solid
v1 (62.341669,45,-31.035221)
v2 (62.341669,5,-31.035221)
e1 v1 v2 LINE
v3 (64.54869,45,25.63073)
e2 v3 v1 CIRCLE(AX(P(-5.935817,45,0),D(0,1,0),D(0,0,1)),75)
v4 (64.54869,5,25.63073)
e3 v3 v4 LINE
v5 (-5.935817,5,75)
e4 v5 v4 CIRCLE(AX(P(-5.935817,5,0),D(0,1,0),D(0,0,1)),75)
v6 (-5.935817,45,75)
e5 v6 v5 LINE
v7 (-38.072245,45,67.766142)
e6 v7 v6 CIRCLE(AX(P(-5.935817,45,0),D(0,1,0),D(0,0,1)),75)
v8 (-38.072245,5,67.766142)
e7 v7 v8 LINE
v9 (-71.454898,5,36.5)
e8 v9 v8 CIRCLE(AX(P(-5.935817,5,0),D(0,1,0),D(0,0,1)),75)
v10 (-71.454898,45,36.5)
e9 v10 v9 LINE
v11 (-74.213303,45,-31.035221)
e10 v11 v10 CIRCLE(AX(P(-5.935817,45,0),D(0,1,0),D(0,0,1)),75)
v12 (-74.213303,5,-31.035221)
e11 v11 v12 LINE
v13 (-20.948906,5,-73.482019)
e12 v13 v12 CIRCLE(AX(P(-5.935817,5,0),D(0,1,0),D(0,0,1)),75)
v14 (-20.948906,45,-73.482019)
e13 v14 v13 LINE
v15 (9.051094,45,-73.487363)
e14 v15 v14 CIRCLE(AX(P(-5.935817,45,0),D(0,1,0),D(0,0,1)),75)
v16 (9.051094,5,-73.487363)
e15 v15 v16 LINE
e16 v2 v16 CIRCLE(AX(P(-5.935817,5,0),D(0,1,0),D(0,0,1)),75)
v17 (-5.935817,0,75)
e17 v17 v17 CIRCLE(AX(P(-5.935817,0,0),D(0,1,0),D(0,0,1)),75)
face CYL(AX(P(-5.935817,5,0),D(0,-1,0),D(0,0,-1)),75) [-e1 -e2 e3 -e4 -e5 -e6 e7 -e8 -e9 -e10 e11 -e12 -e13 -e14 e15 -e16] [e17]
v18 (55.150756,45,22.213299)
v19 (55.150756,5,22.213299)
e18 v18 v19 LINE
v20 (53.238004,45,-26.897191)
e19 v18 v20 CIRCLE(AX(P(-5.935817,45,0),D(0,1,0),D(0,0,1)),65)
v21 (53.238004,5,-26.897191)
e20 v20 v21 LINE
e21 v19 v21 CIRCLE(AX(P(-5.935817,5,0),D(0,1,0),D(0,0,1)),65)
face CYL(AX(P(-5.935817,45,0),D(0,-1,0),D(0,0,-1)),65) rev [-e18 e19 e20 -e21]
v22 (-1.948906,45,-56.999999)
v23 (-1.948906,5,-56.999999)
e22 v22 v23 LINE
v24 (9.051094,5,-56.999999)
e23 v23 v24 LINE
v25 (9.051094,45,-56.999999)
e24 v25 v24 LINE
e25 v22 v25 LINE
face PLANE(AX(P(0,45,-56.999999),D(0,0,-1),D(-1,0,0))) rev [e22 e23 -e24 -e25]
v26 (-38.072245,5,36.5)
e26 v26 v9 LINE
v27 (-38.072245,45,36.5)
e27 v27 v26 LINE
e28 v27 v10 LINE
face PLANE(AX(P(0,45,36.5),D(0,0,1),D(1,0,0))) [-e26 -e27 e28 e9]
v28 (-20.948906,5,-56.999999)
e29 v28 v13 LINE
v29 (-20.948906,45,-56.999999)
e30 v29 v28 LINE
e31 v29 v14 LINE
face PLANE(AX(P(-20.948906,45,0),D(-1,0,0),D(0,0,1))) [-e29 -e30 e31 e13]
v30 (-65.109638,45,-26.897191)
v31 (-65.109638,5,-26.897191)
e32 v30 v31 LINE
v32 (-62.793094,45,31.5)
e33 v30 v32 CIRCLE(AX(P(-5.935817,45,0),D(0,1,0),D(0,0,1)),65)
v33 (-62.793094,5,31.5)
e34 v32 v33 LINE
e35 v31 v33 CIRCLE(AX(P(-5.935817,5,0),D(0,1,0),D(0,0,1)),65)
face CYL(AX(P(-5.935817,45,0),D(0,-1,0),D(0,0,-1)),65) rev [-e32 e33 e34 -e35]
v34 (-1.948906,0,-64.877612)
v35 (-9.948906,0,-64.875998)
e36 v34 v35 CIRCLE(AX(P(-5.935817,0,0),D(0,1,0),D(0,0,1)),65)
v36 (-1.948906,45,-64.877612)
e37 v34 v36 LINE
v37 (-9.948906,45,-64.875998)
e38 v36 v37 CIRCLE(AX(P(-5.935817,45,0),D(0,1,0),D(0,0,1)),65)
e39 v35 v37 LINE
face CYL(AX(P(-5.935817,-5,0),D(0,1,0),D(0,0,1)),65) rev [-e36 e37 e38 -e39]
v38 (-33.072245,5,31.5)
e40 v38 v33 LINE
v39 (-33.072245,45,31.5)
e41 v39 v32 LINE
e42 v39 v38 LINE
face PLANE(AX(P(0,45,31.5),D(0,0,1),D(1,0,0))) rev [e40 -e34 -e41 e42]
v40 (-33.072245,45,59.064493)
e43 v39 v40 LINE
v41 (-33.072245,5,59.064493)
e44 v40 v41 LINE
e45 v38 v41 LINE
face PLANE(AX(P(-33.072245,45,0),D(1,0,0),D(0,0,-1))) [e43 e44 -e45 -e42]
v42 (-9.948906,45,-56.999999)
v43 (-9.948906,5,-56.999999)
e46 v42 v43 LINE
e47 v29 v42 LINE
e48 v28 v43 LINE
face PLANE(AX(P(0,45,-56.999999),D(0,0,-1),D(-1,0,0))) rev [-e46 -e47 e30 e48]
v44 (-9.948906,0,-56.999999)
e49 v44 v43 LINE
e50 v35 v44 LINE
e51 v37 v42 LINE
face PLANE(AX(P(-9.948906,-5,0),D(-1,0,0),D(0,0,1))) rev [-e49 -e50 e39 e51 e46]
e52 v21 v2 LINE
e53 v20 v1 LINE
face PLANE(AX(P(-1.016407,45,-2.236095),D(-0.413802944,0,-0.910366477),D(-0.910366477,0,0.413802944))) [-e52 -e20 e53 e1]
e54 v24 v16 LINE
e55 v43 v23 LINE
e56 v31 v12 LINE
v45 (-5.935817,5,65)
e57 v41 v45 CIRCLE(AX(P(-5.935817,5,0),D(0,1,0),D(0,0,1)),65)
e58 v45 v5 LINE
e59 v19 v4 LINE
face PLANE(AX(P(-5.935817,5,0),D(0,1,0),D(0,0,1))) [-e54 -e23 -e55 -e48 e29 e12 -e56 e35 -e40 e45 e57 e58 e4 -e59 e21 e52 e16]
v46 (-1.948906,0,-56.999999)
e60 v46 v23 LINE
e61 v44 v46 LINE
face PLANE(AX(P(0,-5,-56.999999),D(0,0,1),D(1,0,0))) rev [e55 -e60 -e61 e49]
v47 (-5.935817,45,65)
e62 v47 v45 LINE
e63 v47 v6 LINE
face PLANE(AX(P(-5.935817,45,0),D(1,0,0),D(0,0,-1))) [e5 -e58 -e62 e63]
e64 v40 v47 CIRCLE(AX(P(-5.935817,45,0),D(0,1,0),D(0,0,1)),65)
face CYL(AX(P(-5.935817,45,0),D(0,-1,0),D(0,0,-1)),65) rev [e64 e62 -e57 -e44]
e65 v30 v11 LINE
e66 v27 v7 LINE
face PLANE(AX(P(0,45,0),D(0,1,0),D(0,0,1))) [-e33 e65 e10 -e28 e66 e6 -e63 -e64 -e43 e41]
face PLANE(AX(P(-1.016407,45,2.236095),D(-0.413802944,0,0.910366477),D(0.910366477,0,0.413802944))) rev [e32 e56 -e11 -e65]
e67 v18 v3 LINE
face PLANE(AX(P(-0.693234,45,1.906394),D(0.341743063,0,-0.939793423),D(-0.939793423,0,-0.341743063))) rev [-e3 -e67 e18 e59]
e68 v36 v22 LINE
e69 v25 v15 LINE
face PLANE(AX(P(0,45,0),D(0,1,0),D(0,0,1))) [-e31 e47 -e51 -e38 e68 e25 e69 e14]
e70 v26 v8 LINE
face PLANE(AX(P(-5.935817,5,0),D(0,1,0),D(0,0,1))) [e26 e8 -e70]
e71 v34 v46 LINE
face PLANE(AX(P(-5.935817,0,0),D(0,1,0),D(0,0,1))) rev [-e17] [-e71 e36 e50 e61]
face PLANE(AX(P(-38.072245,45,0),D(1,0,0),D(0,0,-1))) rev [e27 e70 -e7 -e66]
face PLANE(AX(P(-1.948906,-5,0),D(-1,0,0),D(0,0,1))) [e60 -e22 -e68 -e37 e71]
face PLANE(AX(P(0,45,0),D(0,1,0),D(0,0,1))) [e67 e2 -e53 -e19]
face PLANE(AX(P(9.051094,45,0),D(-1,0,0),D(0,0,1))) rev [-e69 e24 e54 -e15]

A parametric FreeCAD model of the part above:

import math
import FreeCAD as App
import Part
import Sketcher
from FreeCAD import Vector

doc = App.newDocument("Part")
params = doc.addObject("Spreadsheet::Sheet", "Params")
for row, (alias, value) in enumerate([
    ("sketch1_diameter", "150 mm"),
    ("pad1_length", "5 mm"),
    ("sketch2_radius", "65 mm"),
    ("sketch2_width", "8 mm"),
    ("pocket1_length", "10 mm"),
    ("sketch3_radius", "65 mm"),
    ("sketch3_radius2", "75 mm"),
    ("sketch3_width", "11 mm"),
    ("pad2_length", "40 mm"),
], start=1):
    params.set(f"A{row}", alias)
    params.set(f"B{row}", "=" + value)
    params.setAlias(f"B{row}", alias)

body = doc.addObject("PartDesign::Body", "Body")

sketch1 = body.newObject("Sketcher::SketchObject", "Sketch")
sketch1.AttachmentSupport = (doc.getObject("XZ_Plane"), [""])
sketch1.MapMode = "FlatFace"
sketch1.addGeometry(Part.Circle(Vector(-6, 0, 0), Vector(0, 0, 1), 75), False)
sketch1.addConstraint([
    Sketcher.Constraint("PointOnObject", 0, 3, -1),
    Sketcher.Constraint("Diameter", 0, 150.0),
    Sketcher.Constraint("DistanceX", 0, 3, -1, 1, 5.935817),
])
sketch1.setExpression("Constraints[1]", "Params.sketch1_diameter")
pad1 = body.newObject("PartDesign::Pad", "Pad")
pad1.Profile = sketch1
pad1.setExpression("Length", "Params.pad1_length")
pad1.Reversed = True

sketch2 = body.newObject("Sketcher::SketchObject", "Sketch001")
sketch2.AttachmentSupport = (doc.getObject("XZ_Plane"), [""])
sketch2.MapMode = "FlatFace"
sketch2.AttachmentOffset = App.Placement(Vector(0, 0, -5), App.Rotation())
sketch2.addGeometry([
    Part.LineSegment(Vector(-2, -57, 0), Vector(-2, -65, 0)),
    Part.ArcOfCircle(Part.Circle(Vector(-6, 0, 0), Vector(0, 0, 1), 65), math.radians(-93.54), math.radians(-86.48)),
    Part.LineSegment(Vector(-10, -65, 0), Vector(-10, -57, 0)),
    Part.LineSegment(Vector(-10, -57, 0), Vector(-2, -57, 0)),
], False)
sketch2.addConstraint([
    Sketcher.Constraint("Coincident", 0, 2, 1, 2),
    Sketcher.Constraint("Coincident", 1, 1, 2, 1),
    Sketcher.Constraint("Coincident", 2, 2, 3, 1),
    Sketcher.Constraint("Coincident", 3, 2, 0, 1),
    Sketcher.Constraint("Vertical", 0),
    Sketcher.Constraint("Vertical", 2),
    Sketcher.Constraint("Horizontal", 3),
    Sketcher.Constraint("PointOnObject", 1, 3, -1),
    Sketcher.Constraint("Radius", 1, 65.0),
    Sketcher.Constraint("DistanceX", 3, 1, 3, 2, 8.0),
    Sketcher.Constraint("DistanceY", 2, 2, -1, 1, 56.999999),
    Sketcher.Constraint("DistanceY", 2, 1, 2, 2, 7.875999),
    Sketcher.Constraint("DistanceX", 1, 3, -1, 1, 5.935817),
])
sketch2.setExpression("Constraints[8]", "Params.sketch2_radius")
sketch2.setExpression("Constraints[9]", "Params.sketch2_width")
pocket1 = body.newObject("PartDesign::Pocket", "Pocket")
pocket1.Profile = sketch2
pocket1.setExpression("Length", "Params.pocket1_length")
pocket1.Reversed = True

sketch3 = body.newObject("Sketcher::SketchObject", "Sketch002")
sketch3.AttachmentSupport = (doc.getObject("XZ_Plane"), [""])
sketch3.MapMode = "FlatFace"
sketch3.AttachmentOffset = App.Placement(Vector(0, 0, -5), App.Rotation())
sketch3.addGeometry([
    Part.ArcOfCircle(Part.Circle(Vector(-6, 0, 0), Vector(0, 0, 1), 65), math.radians(-24), math.radians(0)),
    Part.ArcOfCircle(Part.Circle(Vector(-6, 0, 0), Vector(0, 0, 1), 65), math.radians(0), math.radians(19.98)),
    Part.LineSegment(Vector(55, 22, 0), Vector(65, 26, 0)),
    Part.ArcOfCircle(Part.Circle(Vector(-6, 0, 0), Vector(0, 0, 1), 75), math.radians(0), math.radians(19.98)),
    Part.ArcOfCircle(Part.Circle(Vector(-6, 0, 0), Vector(0, 0, 1), 75), math.radians(-24), math.radians(0)),
    Part.LineSegment(Vector(62, -31, 0), Vector(53, -27, 0)),
    Part.LineSegment(Vector(-6, 75, 0), Vector(-6, 65, 0)),
    Part.ArcOfCircle(Part.Circle(Vector(-6, 0, 0), Vector(0, 0, 1), 65), math.radians(90), math.radians(115)),
    Part.LineSegment(Vector(-33, 59, 0), Vector(-33, 32, 0)),
    Part.LineSegment(Vector(-33, 32, 0), Vector(-63, 32, 0)),
    Part.ArcOfCircle(Part.Circle(Vector(-6, 0, 0), Vector(0, 0, 1), 65), math.radians(151.01), math.radians(160.02)),
    Part.ArcOfCircle(Part.Circle(Vector(-6, 0, 0), Vector(0, 0, 1), 65), math.radians(160.02), math.radians(180)),
    Part.ArcOfCircle(Part.Circle(Vector(-6, 0, 0), Vector(0, 0, 1), 65), math.radians(-180), math.radians(-156)),
    Part.LineSegment(Vector(-65, -27, 0), Vector(-74, -31, 0)),
    Part.ArcOfCircle(Part.Circle(Vector(-6, 0, 0), Vector(0, 0, 1), 75), math.radians(180), math.radians(204)),
    Part.ArcOfCircle(Part.Circle(Vector(-6, 0, 0), Vector(0, 0, 1), 75), math.radians(160.02), math.radians(180)),
    Part.ArcOfCircle(Part.Circle(Vector(-6, 0, 0), Vector(0, 0, 1), 75), math.radians(155.17), math.radians(160.02)),
    Part.ArcOfCircle(Part.Circle(Vector(-6, 0, 0), Vector(0, 0, 1), 75), math.radians(150.88), math.radians(155.17)),
    Part.LineSegment(Vector(-71, 36, 0), Vector(-38, 36, 0)),
    Part.LineSegment(Vector(-38, 36, 0), Vector(-38, 68, 0)),
    Part.ArcOfCircle(Part.Circle(Vector(-6, 0, 0), Vector(0, 0, 1), 75), math.radians(111.21), math.radians(115.37)),
    Part.ArcOfCircle(Part.Circle(Vector(-6, 0, 0), Vector(0, 0, 1), 75), math.radians(90), math.radians(111)),
    Part.LineSegment(Vector(-21, -57, 0), Vector(-10, -57, 0)),
    Part.LineSegment(Vector(-10, -57, 0), Vector(-10, -65, 0)),
    Part.ArcOfCircle(Part.Circle(Vector(-6, 0, 0), Vector(0, 0, 1), 65), math.radians(-93.54), math.radians(-86.48)),
    Part.LineSegment(Vector(-2, -65, 0), Vector(-2, -57, 0)),
    Part.LineSegment(Vector(-2, -57, 0), Vector(9, -57, 0)),
    Part.LineSegment(Vector(9, -57, 0), Vector(9, -73, 0)),
    Part.ArcOfCircle(Part.Circle(Vector(-6, 0, 0), Vector(0, 0, 1), 75), math.radians(-102), math.radians(-78)),
    Part.LineSegment(Vector(-21, -73, 0), Vector(-21, -57, 0)),
], False)
sketch3.addConstraint([
    Sketcher.Constraint("Tangent", 0, 2, 1, 1),
    Sketcher.Constraint("Coincident", 1, 2, 2, 1),
    Sketcher.Constraint("Coincident", 2, 2, 3, 2),
    Sketcher.Constraint("Tangent", 3, 1, 4, 2),
    Sketcher.Constraint("Coincident", 4, 1, 5, 1),
    Sketcher.Constraint("Coincident", 5, 2, 0, 1),
    Sketcher.Constraint("Coincident", 6, 2, 7, 1),
    Sketcher.Constraint("Coincident", 7, 2, 8, 1),
    Sketcher.Constraint("Coincident", 8, 2, 9, 1),
    Sketcher.Constraint("Coincident", 9, 2, 10, 1),
    Sketcher.Constraint("Tangent", 10, 2, 11, 1),
    Sketcher.Constraint("Tangent", 11, 2, 12, 1),
    Sketcher.Constraint("Coincident", 12, 2, 13, 1),
    Sketcher.Constraint("Coincident", 13, 2, 14, 2),
    Sketcher.Constraint("Tangent", 14, 1, 15, 2),
    Sketcher.Constraint("Tangent", 15, 1, 16, 2),
    Sketcher.Constraint("Tangent", 16, 1, 17, 2),
    Sketcher.Constraint("Coincident", 17, 1, 18, 1),
    Sketcher.Constraint("Coincident", 18, 2, 19, 1),
    Sketcher.Constraint("Coincident", 19, 2, 20, 2),
    Sketcher.Constraint("Tangent", 20, 1, 21, 2),
    Sketcher.Constraint("Coincident", 21, 1, 6, 1),
    Sketcher.Constraint("Coincident", 22, 2, 23, 1),
    Sketcher.Constraint("Coincident", 23, 2, 24, 1),
    Sketcher.Constraint("Coincident", 24, 2, 25, 1),
    Sketcher.Constraint("Coincident", 25, 2, 26, 1),
    Sketcher.Constraint("Coincident", 26, 2, 27, 1),
    Sketcher.Constraint("Coincident", 27, 2, 28, 2),
    Sketcher.Constraint("Coincident", 28, 1, 29, 1),
    Sketcher.Constraint("Coincident", 29, 2, 22, 1),
    Sketcher.Constraint("Vertical", 6),
    Sketcher.Constraint("Vertical", 8),
    Sketcher.Constraint("Horizontal", 9),
    Sketcher.Constraint("Horizontal", 18),
    Sketcher.Constraint("Vertical", 19),
    Sketcher.Constraint("Horizontal", 22),
    Sketcher.Constraint("Vertical", 23),
    Sketcher.Constraint("Vertical", 25),
    Sketcher.Constraint("Horizontal", 26),
    Sketcher.Constraint("Vertical", 27),
    Sketcher.Constraint("Vertical", 29),
    Sketcher.Constraint("Coincident", 3, 3, 0, 3),
    Sketcher.Constraint("Coincident", 7, 3, 0, 3),
    Sketcher.Constraint("Coincident", 10, 3, 0, 3),
    Sketcher.Constraint("Coincident", 12, 3, 0, 3),
    Sketcher.Constraint("Coincident", 14, 3, 0, 3),
    Sketcher.Constraint("Coincident", 16, 3, 0, 3),
    Sketcher.Constraint("Coincident", 20, 3, 0, 3),
    Sketcher.Constraint("Coincident", 24, 3, 0, 3),
    Sketcher.Constraint("Coincident", 28, 3, 0, 3),
    Sketcher.Constraint("Equal", 0, 1),
    Sketcher.Constraint("Equal", 3, 4),
    Sketcher.Constraint("Equal", 1, 7),
    Sketcher.Constraint("Equal", 7, 10),
    Sketcher.Constraint("Equal", 4, 14),
    Sketcher.Constraint("Equal", 16, 17),
    Sketcher.Constraint("Equal", 17, 20),
    Sketcher.Constraint("Equal", 20, 21),
    Sketcher.Constraint("Equal", 12, 24),
    Sketcher.Constraint("Equal", 21, 28),
    Sketcher.Constraint("PointOnObject", 0, 3, -1),
    Sketcher.Constraint("PointOnObject", 0, 2, -1),
    Sketcher.Constraint("PointOnObject", 3, 1, -1),
    Sketcher.Constraint("PointOnObject", 11, 2, -1),
    Sketcher.Constraint("PointOnObject", 14, 1, -1),
    Sketcher.Constraint("Horizontal", 1, 2, 10, 2),
    Sketcher.Constraint("Horizontal", 5, 2, 12, 2),
    Sketcher.Constraint("Horizontal", 4, 1, 13, 2),
    Sketcher.Constraint("Horizontal", 2, 2, 15, 1),
    Sketcher.Constraint("Horizontal", 9, 2, 16, 1),
    Sketcher.Constraint("Horizontal", 22, 2, 25, 2),
    Sketcher.Constraint("Vertical", 28, 3, 6, 2),
    Sketcher.Constraint("Vertical", 8, 2, 20, 1),
    Sketcher.Constraint("Equal", 22, 26),
    Sketcher.Constraint("Radius", 0, 65.0),
    Sketcher.Constraint("Radius", 3, 75.0),
    Sketcher.Constraint("DistanceX", 22, 1, 22, 2, 11.0),
    Sketcher.Constraint("DistanceY", 22, 2, -1, 1, 56.999999),
    Sketcher.Constraint("DistanceY", 16, 1, 17, 1, 5.0),
    Sketcher.Constraint("DistanceX", 18, 2, 8, 2, 5.0),
    Sketcher.Constraint("DistanceX", 23, 2, 24, 2, 8.0),
    Sketcher.Constraint("DistanceY", -1, 1, 8, 2, 31.5),
    Sketcher.Constraint("DistanceY", 23, 2, 23, 1, 7.875999),
    Sketcher.Constraint("DistanceX", 9, 2, 9, 1, 29.72085),
    Sketcher.Constraint("DistanceY", -1, 1, 1, 2, 22.213299),
    Sketcher.Constraint("DistanceX", 15, 1, 16, 1, 2.420199),
    Sketcher.Constraint("DistanceX", -1, 1, 2, 2, 64.54869),
    Sketcher.Constraint("DistanceX", -1, 1, 4, 1, 62.341669),
    Sketcher.Constraint("DistanceY", 5, 2, -1, 1, 26.897191),
])
sketch3.setExpression("Constraints[74]", "Params.sketch3_radius")
sketch3.setExpression("Constraints[75]", "Params.sketch3_radius2")
sketch3.setExpression("Constraints[76]", "Params.sketch3_width")
pad2 = body.newObject("PartDesign::Pad", "Pad001")
pad2.Profile = sketch3
pad2.setExpression("Length", "Params.pad2_length")
pad2.Reversed = True

doc.recompute()
